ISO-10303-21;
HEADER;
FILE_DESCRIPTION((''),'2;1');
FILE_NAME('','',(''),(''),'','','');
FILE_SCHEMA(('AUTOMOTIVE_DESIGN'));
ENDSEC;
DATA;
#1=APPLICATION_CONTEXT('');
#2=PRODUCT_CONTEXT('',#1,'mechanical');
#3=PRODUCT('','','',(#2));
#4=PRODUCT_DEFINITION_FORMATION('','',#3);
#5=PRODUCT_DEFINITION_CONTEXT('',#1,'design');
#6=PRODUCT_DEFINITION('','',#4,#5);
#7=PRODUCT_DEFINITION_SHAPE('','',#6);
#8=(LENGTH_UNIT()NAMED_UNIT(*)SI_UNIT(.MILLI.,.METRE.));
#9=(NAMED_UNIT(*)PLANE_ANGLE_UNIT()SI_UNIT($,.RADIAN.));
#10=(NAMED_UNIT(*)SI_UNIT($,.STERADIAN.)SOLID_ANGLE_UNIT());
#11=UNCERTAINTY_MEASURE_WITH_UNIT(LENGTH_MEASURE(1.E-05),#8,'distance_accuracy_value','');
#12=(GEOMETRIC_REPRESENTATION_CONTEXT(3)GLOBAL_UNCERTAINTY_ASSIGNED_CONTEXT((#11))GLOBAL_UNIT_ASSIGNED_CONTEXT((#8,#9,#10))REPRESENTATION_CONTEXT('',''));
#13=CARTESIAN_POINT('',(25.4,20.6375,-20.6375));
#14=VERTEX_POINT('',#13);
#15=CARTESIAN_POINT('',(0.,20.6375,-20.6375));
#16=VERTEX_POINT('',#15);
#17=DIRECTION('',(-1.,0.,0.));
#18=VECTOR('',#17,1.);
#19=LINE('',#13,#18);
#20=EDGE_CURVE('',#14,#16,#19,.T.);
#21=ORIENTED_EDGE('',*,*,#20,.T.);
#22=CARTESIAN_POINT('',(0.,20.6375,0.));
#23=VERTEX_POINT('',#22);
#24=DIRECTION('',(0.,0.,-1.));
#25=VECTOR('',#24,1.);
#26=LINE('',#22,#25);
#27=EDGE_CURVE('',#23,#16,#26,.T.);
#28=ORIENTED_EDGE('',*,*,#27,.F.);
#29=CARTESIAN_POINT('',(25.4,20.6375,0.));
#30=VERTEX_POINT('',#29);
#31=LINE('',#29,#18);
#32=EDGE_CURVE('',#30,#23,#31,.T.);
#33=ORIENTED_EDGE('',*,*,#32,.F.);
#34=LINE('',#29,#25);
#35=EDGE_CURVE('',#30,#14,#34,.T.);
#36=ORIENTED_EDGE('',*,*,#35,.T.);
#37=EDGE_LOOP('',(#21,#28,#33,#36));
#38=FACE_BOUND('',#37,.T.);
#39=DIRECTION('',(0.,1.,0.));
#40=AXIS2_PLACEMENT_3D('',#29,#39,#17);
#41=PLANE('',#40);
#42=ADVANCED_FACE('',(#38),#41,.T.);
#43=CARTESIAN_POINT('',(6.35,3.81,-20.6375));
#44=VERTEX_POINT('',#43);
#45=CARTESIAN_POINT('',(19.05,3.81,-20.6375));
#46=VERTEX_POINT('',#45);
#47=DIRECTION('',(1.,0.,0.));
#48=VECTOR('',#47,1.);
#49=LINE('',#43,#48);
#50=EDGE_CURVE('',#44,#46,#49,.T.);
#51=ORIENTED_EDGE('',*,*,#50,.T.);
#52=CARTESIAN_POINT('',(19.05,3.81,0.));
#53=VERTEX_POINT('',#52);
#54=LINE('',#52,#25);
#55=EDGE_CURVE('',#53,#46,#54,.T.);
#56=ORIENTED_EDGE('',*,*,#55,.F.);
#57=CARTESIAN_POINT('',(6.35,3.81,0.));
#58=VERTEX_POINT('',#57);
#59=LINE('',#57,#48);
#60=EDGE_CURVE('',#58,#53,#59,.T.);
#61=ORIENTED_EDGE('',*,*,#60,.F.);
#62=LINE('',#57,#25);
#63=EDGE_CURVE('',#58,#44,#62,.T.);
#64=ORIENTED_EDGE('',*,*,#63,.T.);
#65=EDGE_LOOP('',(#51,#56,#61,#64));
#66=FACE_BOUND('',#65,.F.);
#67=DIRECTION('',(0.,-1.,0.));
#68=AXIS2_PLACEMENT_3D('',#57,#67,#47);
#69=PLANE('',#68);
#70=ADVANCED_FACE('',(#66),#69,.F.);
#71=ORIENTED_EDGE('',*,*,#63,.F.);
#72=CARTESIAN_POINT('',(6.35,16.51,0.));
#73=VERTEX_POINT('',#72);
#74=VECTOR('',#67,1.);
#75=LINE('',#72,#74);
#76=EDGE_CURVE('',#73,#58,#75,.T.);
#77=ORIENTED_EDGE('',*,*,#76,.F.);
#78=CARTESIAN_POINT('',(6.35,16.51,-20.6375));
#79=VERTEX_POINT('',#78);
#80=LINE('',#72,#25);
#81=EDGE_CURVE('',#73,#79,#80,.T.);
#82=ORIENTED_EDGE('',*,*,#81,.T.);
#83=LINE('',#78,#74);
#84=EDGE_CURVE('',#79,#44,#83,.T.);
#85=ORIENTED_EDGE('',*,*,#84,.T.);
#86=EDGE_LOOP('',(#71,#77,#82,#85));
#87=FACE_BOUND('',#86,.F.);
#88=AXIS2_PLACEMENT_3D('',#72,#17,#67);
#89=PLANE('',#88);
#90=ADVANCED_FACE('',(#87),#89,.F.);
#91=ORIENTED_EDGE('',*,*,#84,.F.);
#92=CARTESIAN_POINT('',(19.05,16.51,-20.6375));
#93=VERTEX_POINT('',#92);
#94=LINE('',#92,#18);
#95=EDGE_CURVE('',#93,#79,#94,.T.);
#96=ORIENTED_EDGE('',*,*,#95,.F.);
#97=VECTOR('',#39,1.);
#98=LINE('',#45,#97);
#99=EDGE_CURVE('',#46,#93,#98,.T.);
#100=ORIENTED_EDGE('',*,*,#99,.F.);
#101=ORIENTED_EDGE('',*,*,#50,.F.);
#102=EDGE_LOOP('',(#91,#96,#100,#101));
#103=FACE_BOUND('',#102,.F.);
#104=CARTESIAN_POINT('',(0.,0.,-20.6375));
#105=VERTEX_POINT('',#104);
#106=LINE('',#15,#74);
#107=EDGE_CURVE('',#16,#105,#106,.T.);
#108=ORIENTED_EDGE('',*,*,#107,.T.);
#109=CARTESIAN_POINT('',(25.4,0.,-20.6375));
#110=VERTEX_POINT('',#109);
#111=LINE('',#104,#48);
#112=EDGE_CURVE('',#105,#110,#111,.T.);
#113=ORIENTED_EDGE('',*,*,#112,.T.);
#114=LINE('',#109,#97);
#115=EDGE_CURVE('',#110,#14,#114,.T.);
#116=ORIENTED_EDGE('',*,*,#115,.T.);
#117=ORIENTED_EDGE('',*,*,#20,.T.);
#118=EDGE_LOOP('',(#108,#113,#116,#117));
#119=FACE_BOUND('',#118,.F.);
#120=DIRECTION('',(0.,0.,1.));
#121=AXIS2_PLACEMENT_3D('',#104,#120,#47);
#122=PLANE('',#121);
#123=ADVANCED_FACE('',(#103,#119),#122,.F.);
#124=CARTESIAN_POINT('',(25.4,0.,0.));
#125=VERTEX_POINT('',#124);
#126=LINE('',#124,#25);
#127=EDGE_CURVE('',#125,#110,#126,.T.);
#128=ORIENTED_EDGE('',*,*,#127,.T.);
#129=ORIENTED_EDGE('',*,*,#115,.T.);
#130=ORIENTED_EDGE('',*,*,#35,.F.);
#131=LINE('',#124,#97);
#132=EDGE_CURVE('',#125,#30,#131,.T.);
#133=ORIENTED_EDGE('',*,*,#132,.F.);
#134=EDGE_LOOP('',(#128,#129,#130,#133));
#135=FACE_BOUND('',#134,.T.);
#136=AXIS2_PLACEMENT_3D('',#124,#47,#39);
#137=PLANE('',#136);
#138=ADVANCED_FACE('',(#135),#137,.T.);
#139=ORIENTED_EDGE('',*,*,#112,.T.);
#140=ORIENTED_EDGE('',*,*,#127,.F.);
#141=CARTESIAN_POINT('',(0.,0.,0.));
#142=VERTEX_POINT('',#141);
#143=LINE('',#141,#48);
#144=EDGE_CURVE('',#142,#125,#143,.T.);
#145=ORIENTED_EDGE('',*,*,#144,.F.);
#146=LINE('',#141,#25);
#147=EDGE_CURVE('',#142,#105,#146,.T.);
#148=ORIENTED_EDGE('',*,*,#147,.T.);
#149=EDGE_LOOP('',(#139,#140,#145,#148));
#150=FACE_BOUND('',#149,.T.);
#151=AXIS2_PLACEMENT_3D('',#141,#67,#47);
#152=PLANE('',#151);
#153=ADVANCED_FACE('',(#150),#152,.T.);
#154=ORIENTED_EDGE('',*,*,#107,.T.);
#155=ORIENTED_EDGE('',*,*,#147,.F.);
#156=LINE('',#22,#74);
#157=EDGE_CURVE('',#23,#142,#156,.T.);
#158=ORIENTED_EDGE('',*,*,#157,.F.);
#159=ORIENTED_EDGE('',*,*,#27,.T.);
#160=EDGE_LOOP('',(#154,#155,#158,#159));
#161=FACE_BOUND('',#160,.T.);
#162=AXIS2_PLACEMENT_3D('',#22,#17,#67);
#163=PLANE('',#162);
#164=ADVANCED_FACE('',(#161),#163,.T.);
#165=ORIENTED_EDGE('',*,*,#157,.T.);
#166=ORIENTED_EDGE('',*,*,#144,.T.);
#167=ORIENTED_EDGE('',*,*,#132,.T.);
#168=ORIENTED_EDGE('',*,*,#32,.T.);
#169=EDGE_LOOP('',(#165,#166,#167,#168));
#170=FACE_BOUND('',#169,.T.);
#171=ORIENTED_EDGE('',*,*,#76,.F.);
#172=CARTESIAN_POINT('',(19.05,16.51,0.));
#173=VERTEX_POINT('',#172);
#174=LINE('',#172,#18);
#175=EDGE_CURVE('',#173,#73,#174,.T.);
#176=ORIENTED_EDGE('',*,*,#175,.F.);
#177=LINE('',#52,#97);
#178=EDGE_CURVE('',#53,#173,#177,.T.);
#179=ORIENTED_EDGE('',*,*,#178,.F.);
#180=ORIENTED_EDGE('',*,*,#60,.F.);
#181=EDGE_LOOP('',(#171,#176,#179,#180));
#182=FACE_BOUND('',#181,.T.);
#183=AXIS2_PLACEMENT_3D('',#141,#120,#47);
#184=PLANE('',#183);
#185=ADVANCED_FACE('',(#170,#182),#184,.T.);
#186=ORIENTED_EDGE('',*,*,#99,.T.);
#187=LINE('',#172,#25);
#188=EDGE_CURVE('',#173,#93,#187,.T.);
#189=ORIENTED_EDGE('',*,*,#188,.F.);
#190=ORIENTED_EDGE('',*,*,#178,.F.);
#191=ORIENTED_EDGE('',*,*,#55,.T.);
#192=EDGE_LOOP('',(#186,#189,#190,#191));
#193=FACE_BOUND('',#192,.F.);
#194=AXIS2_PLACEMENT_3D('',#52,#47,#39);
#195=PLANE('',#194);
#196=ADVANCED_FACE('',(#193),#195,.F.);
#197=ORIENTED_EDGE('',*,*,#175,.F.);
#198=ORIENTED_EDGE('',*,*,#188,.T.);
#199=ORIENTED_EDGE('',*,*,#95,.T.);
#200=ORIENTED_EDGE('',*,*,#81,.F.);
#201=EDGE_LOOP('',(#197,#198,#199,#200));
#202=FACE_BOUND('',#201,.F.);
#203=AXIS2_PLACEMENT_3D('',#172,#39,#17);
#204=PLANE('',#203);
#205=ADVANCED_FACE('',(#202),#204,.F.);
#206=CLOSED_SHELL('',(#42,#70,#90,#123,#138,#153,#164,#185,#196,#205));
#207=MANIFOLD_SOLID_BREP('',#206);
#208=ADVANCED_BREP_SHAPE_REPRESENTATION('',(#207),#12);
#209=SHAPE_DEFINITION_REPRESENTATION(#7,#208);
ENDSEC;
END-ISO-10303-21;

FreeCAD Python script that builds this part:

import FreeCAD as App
import Part
import Sketcher
from FreeCAD import Vector
Q = App.Units.Quantity

doc = App.newDocument("Part")
body = doc.addObject("PartDesign::Body", "Body")

# Sketch on XY plane
sketch1 = body.newObject("Sketcher::SketchObject", "Sketch")
sketch1.AttachmentSupport = (doc.getObject("XY_Plane"), [""])
sketch1.MapMode = "FlatFace"
sketch1.addGeometry(Part.LineSegment(Vector(0, 20.6375, 0), Vector(0, 0, 0)), False)
sketch1.addGeometry(Part.LineSegment(Vector(0, 0, 0), Vector(25.4, 0, 0)), False)
sketch1.addGeometry(Part.LineSegment(Vector(25.4, 0, 0), Vector(25.4, 20.6375, 0)), False)
sketch1.addGeometry(Part.LineSegment(Vector(25.4, 20.6375, 0), Vector(0, 20.6375, 0)), False)
sketch1.addGeometry(Part.LineSegment(Vector(19.05, 3.81, 0), Vector(6.35, 3.81, 0)), False)
sketch1.addGeometry(Part.LineSegment(Vector(6.35, 3.81, 0), Vector(6.35, 16.51, 0)), False)
sketch1.addGeometry(Part.LineSegment(Vector(6.35, 16.51, 0), Vector(19.05, 16.51, 0)), False)
sketch1.addGeometry(Part.LineSegment(Vector(19.05, 16.51, 0), Vector(19.05, 3.81, 0)), False)
sketch1.addConstraint(Sketcher.Constraint("Coincident", 0, 2, 1, 1))
sketch1.addConstraint(Sketcher.Constraint("Coincident", 1, 2, 2, 1))
sketch1.addConstraint(Sketcher.Constraint("Coincident", 2, 2, 3, 1))
sketch1.addConstraint(Sketcher.Constraint("Coincident", 3, 2, 0, 1))
sketch1.addConstraint(Sketcher.Constraint("Coincident", 4, 2, 5, 1))
sketch1.addConstraint(Sketcher.Constraint("Coincident", 5, 2, 6, 1))
sketch1.addConstraint(Sketcher.Constraint("Coincident", 6, 2, 7, 1))
sketch1.addConstraint(Sketcher.Constraint("Coincident", 7, 2, 4, 1))
sketch1.addConstraint(Sketcher.Constraint("Vertical", 0))
sketch1.addConstraint(Sketcher.Constraint("Horizontal", 1))
sketch1.addConstraint(Sketcher.Constraint("Vertical", 2))
sketch1.addConstraint(Sketcher.Constraint("Horizontal", 3))
sketch1.addConstraint(Sketcher.Constraint("Horizontal", 4))
sketch1.addConstraint(Sketcher.Constraint("Vertical", 5))
sketch1.addConstraint(Sketcher.Constraint("Horizontal", 6))
sketch1.addConstraint(Sketcher.Constraint("Vertical", 7))
sketch1.addConstraint(Sketcher.Constraint("Coincident", 0, 2, -1, 1))
sketch1.addConstraint(Sketcher.Constraint("Equal", 6, 5))
sketch1.addConstraint(Sketcher.Constraint("DistanceX", 1, 1, 1, 2, Q("1 in")))
sketch1.addConstraint(Sketcher.Constraint("DistanceX", 4, 2, 4, 1, Q("0.5 in")))
sketch1.addConstraint(Sketcher.Constraint("DistanceY", 0, 2, 0, 1, Q("0.8125 in")))
sketch1.addConstraint(Sketcher.Constraint("DistanceX", -1, 1, 4, 2, Q("0.25 in")))
sketch1.addConstraint(Sketcher.Constraint("DistanceY", 5, 2, 3, 2, Q("0.1625 in")))
pad1 = body.newObject("PartDesign::Pad", "Pad")
pad1.Profile = sketch1
pad1.Length = Q("0.8125 in")
pad1.Reversed = True

doc.recompute()
